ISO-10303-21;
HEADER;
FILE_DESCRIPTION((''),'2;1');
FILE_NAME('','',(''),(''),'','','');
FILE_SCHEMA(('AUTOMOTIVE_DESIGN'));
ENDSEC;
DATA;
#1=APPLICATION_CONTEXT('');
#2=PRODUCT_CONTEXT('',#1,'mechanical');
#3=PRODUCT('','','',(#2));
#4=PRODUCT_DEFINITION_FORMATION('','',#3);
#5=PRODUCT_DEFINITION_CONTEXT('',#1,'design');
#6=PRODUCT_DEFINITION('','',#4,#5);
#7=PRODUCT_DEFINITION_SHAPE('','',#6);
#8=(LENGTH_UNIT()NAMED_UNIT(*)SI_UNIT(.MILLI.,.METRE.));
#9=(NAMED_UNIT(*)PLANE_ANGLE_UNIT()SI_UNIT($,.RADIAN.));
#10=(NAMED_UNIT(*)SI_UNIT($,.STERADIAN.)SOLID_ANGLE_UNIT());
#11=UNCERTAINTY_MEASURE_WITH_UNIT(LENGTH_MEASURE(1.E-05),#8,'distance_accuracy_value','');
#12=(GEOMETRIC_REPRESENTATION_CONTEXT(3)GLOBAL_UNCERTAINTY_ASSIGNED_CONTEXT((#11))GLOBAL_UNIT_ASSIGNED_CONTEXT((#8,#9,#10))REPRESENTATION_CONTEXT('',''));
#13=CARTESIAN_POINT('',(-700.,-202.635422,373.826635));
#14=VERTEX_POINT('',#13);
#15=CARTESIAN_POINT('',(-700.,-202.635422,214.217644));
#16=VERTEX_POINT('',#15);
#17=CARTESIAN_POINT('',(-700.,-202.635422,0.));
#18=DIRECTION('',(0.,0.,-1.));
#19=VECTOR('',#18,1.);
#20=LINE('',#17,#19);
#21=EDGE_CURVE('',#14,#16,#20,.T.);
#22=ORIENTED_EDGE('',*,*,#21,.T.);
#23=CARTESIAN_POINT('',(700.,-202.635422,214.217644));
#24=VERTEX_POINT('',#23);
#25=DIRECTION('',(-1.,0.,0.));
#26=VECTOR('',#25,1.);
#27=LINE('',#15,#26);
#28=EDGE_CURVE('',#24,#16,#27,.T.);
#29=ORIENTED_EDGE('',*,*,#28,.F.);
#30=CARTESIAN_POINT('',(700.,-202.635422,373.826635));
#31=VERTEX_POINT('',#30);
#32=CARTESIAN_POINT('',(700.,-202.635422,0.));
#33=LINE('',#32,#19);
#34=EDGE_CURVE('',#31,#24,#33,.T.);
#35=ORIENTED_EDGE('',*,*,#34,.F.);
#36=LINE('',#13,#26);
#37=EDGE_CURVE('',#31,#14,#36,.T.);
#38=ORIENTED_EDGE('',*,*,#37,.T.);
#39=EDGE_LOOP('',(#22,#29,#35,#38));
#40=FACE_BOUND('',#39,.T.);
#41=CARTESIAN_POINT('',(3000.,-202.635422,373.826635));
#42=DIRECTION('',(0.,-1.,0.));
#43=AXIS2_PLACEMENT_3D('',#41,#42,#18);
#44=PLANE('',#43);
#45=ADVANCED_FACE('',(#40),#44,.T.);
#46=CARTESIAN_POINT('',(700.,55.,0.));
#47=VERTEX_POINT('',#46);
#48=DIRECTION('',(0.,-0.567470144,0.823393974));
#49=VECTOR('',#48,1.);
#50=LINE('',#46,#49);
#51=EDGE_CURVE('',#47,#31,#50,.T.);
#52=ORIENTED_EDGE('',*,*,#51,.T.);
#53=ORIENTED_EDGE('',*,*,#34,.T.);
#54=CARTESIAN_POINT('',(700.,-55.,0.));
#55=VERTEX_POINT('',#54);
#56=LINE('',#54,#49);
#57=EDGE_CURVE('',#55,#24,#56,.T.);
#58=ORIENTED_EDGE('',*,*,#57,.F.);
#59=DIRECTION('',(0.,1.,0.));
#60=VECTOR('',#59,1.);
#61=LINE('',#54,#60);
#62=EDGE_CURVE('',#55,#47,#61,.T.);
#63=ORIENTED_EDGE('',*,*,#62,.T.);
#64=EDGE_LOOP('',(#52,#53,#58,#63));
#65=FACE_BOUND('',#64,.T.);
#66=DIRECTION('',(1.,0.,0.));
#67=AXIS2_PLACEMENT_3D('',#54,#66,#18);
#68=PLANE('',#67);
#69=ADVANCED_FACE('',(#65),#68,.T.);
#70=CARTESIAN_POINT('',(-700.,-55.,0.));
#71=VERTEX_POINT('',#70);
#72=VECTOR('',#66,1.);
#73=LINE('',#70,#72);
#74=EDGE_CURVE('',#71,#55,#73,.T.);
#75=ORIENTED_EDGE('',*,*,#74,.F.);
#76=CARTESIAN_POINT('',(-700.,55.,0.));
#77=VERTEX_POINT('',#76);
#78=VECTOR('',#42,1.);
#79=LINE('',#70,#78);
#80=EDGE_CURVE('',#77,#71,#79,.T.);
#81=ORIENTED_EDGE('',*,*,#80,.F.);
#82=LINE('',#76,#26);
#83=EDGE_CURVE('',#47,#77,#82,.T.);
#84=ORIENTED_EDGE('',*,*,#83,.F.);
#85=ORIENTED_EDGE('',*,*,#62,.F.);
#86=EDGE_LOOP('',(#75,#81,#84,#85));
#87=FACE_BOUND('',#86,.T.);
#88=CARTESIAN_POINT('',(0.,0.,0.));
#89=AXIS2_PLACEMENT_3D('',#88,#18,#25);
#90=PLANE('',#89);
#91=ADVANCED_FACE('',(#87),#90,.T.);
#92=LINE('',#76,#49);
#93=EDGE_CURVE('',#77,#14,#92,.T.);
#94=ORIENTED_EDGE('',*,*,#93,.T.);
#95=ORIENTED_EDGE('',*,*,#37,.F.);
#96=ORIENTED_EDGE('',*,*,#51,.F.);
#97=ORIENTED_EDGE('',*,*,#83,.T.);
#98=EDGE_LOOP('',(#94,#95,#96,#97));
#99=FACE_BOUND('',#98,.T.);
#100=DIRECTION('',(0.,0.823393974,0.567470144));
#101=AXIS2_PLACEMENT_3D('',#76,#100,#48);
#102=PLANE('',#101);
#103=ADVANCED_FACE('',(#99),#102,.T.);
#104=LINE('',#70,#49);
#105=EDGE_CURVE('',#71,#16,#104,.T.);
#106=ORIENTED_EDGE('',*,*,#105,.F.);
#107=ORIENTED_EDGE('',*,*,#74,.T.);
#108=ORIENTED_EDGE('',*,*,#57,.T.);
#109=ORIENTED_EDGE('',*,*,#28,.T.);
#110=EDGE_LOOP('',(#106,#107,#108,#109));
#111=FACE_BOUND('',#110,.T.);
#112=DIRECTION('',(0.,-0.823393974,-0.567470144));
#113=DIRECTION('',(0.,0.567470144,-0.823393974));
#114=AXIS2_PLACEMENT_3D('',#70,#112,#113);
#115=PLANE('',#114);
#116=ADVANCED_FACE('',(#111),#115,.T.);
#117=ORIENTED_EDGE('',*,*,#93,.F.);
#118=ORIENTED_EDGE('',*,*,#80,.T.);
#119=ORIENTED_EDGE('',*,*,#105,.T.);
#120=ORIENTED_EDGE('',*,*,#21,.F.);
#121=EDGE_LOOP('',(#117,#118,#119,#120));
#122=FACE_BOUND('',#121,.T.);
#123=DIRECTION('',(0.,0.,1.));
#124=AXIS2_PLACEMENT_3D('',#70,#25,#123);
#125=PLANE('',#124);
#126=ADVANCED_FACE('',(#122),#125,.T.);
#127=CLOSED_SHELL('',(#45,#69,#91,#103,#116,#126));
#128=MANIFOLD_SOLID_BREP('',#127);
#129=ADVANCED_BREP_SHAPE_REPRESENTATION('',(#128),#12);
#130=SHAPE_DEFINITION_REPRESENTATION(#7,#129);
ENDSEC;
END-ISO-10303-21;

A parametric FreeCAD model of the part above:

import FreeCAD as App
import Part
import Sketcher
from FreeCAD import Vector


def add_polygon(sketch, points):
    """Adds a closed chain of lines whose ends are joined by coincident constraints."""
    first, n = sketch.GeometryCount, len(points)
    for a, b in zip(points, points[1:] + points[:1]):
        sketch.addGeometry(Part.LineSegment(App.Vector(*a, 0), App.Vector(*b, 0)), False)
    for i in range(n):
        sketch.addConstraint(Sketcher.Constraint("Coincident", first + i, 2, first + (i + 1) % n, 1))

doc = App.newDocument("Part")
body = doc.addObject("PartDesign::Body", "Body")

sketch1 = body.newObject("Sketcher::SketchObject", "Sketch")
sketch1.AttachmentSupport = (doc.getObject("XY_Plane"), [""])
sketch1.MapMode = "FlatFace"
add_polygon(sketch1, [(-700, 55), (-700, -55), (700, -55), (700, 55)])
sketch1.addConstraint([
    Sketcher.Constraint("Vertical", 0),
    Sketcher.Constraint("Horizontal", 1),
    Sketcher.Constraint("Vertical", 2),
    Sketcher.Constraint("Horizontal", 3),
    Sketcher.Constraint("Symmetric", 0, 2, 2, 2, -1, 1),
    Sketcher.Constraint("DistanceX", 1, 1, 1, 2, 1400.0),
    Sketcher.Constraint("DistanceY", 0, 2, 0, 1, 110.0),
])

sketch2 = body.newObject("Sketcher::SketchObject", "Sketch001")
sketch2.Placement = App.Placement(Vector(0, -35.745678, -24.635358), App.Rotation(Vector(0, 0.567470144, -0.823393974), Vector(1.000000001, 0, 0), Vector(0, -0.823393974, -0.567470144), "ZXY"))
sketch2.addGeometry(Part.LineSegment(Vector(-30, 0, 0), Vector(-484, 0, 0)), False)
sketch2.addConstraint([
    Sketcher.Constraint("Horizontal", 0),
    Sketcher.Constraint("PointOnObject", 0, 1, -1),
    Sketcher.Constraint("DistanceX", 0, 2, 0, 1, 454.007009),
    Sketcher.Constraint("DistanceX", 0, 1, -1, 1, 29.919284),
])
doc.recompute()

additivepipe = body.newObject("PartDesign::AdditivePipe", "AdditivePipe")
additivepipe.Profile = sketch1
additivepipe.Spine = (sketch2, ["Edge1"])

sketch3 = body.newObject("Sketcher::SketchObject", "Sketch002")
sketch3.AttachmentSupport = (doc.getObject("YZ_Plane"), [""])
sketch3.MapMode = "FlatFace"
add_polygon(sketch3, [(-203, 374), (-321, 374), (-321, 133), (-203, 133)])
sketch3.addConstraint([
    Sketcher.Constraint("Horizontal", 0),
    Sketcher.Constraint("Vertical", 1),
    Sketcher.Constraint("Horizontal", 2),
    Sketcher.Constraint("Vertical", 3),
    Sketcher.Constraint("DistanceX", 0, 2, 0, 1, 118.473209),
    Sketcher.Constraint("DistanceY", 1, 2, 1, 1, 241.229259),
    Sketcher.Constraint("DistanceX", 0, 2, -1, 1, 321.108631),
    Sketcher.Constraint("DistanceY", -1, 1, 0, 2, 373.826635),
])
pocket1 = body.newObject("PartDesign::Pocket", "Pocket")
pocket1.Profile = sketch3
pocket1.Length = 3000
pocket1.Reversed = True

sketch4 = body.newObject("Sketcher::SketchObject", "Sketch003")
sketch4.AttachmentSupport = (doc.getObject("YZ_Plane"), [""])
sketch4.MapMode = "FlatFace"
add_polygon(sketch4, [(-203, 374), (-333, 374), (-333, 111), (-203, 111)])
sketch4.addConstraint([
    Sketcher.Constraint("Horizontal", 0),
    Sketcher.Constraint("Vertical", 1),
    Sketcher.Constraint("Horizontal", 2),
    Sketcher.Constraint("Vertical", 3),
    Sketcher.Constraint("DistanceY", 1, 2, 1, 1, 263.0805),
    Sketcher.Constraint("DistanceX", 0, 2, 0, 1, 130.335311),
    Sketcher.Constraint("DistanceX", 0, 2, -1, 1, 332.970734),
    Sketcher.Constraint("DistanceY", -1, 1, 0, 2, 373.826635),
])
pocket2 = body.newObject("PartDesign::Pocket", "Pocket001")
pocket2.Profile = sketch4
pocket2.Length = 1000

doc.recompute()
